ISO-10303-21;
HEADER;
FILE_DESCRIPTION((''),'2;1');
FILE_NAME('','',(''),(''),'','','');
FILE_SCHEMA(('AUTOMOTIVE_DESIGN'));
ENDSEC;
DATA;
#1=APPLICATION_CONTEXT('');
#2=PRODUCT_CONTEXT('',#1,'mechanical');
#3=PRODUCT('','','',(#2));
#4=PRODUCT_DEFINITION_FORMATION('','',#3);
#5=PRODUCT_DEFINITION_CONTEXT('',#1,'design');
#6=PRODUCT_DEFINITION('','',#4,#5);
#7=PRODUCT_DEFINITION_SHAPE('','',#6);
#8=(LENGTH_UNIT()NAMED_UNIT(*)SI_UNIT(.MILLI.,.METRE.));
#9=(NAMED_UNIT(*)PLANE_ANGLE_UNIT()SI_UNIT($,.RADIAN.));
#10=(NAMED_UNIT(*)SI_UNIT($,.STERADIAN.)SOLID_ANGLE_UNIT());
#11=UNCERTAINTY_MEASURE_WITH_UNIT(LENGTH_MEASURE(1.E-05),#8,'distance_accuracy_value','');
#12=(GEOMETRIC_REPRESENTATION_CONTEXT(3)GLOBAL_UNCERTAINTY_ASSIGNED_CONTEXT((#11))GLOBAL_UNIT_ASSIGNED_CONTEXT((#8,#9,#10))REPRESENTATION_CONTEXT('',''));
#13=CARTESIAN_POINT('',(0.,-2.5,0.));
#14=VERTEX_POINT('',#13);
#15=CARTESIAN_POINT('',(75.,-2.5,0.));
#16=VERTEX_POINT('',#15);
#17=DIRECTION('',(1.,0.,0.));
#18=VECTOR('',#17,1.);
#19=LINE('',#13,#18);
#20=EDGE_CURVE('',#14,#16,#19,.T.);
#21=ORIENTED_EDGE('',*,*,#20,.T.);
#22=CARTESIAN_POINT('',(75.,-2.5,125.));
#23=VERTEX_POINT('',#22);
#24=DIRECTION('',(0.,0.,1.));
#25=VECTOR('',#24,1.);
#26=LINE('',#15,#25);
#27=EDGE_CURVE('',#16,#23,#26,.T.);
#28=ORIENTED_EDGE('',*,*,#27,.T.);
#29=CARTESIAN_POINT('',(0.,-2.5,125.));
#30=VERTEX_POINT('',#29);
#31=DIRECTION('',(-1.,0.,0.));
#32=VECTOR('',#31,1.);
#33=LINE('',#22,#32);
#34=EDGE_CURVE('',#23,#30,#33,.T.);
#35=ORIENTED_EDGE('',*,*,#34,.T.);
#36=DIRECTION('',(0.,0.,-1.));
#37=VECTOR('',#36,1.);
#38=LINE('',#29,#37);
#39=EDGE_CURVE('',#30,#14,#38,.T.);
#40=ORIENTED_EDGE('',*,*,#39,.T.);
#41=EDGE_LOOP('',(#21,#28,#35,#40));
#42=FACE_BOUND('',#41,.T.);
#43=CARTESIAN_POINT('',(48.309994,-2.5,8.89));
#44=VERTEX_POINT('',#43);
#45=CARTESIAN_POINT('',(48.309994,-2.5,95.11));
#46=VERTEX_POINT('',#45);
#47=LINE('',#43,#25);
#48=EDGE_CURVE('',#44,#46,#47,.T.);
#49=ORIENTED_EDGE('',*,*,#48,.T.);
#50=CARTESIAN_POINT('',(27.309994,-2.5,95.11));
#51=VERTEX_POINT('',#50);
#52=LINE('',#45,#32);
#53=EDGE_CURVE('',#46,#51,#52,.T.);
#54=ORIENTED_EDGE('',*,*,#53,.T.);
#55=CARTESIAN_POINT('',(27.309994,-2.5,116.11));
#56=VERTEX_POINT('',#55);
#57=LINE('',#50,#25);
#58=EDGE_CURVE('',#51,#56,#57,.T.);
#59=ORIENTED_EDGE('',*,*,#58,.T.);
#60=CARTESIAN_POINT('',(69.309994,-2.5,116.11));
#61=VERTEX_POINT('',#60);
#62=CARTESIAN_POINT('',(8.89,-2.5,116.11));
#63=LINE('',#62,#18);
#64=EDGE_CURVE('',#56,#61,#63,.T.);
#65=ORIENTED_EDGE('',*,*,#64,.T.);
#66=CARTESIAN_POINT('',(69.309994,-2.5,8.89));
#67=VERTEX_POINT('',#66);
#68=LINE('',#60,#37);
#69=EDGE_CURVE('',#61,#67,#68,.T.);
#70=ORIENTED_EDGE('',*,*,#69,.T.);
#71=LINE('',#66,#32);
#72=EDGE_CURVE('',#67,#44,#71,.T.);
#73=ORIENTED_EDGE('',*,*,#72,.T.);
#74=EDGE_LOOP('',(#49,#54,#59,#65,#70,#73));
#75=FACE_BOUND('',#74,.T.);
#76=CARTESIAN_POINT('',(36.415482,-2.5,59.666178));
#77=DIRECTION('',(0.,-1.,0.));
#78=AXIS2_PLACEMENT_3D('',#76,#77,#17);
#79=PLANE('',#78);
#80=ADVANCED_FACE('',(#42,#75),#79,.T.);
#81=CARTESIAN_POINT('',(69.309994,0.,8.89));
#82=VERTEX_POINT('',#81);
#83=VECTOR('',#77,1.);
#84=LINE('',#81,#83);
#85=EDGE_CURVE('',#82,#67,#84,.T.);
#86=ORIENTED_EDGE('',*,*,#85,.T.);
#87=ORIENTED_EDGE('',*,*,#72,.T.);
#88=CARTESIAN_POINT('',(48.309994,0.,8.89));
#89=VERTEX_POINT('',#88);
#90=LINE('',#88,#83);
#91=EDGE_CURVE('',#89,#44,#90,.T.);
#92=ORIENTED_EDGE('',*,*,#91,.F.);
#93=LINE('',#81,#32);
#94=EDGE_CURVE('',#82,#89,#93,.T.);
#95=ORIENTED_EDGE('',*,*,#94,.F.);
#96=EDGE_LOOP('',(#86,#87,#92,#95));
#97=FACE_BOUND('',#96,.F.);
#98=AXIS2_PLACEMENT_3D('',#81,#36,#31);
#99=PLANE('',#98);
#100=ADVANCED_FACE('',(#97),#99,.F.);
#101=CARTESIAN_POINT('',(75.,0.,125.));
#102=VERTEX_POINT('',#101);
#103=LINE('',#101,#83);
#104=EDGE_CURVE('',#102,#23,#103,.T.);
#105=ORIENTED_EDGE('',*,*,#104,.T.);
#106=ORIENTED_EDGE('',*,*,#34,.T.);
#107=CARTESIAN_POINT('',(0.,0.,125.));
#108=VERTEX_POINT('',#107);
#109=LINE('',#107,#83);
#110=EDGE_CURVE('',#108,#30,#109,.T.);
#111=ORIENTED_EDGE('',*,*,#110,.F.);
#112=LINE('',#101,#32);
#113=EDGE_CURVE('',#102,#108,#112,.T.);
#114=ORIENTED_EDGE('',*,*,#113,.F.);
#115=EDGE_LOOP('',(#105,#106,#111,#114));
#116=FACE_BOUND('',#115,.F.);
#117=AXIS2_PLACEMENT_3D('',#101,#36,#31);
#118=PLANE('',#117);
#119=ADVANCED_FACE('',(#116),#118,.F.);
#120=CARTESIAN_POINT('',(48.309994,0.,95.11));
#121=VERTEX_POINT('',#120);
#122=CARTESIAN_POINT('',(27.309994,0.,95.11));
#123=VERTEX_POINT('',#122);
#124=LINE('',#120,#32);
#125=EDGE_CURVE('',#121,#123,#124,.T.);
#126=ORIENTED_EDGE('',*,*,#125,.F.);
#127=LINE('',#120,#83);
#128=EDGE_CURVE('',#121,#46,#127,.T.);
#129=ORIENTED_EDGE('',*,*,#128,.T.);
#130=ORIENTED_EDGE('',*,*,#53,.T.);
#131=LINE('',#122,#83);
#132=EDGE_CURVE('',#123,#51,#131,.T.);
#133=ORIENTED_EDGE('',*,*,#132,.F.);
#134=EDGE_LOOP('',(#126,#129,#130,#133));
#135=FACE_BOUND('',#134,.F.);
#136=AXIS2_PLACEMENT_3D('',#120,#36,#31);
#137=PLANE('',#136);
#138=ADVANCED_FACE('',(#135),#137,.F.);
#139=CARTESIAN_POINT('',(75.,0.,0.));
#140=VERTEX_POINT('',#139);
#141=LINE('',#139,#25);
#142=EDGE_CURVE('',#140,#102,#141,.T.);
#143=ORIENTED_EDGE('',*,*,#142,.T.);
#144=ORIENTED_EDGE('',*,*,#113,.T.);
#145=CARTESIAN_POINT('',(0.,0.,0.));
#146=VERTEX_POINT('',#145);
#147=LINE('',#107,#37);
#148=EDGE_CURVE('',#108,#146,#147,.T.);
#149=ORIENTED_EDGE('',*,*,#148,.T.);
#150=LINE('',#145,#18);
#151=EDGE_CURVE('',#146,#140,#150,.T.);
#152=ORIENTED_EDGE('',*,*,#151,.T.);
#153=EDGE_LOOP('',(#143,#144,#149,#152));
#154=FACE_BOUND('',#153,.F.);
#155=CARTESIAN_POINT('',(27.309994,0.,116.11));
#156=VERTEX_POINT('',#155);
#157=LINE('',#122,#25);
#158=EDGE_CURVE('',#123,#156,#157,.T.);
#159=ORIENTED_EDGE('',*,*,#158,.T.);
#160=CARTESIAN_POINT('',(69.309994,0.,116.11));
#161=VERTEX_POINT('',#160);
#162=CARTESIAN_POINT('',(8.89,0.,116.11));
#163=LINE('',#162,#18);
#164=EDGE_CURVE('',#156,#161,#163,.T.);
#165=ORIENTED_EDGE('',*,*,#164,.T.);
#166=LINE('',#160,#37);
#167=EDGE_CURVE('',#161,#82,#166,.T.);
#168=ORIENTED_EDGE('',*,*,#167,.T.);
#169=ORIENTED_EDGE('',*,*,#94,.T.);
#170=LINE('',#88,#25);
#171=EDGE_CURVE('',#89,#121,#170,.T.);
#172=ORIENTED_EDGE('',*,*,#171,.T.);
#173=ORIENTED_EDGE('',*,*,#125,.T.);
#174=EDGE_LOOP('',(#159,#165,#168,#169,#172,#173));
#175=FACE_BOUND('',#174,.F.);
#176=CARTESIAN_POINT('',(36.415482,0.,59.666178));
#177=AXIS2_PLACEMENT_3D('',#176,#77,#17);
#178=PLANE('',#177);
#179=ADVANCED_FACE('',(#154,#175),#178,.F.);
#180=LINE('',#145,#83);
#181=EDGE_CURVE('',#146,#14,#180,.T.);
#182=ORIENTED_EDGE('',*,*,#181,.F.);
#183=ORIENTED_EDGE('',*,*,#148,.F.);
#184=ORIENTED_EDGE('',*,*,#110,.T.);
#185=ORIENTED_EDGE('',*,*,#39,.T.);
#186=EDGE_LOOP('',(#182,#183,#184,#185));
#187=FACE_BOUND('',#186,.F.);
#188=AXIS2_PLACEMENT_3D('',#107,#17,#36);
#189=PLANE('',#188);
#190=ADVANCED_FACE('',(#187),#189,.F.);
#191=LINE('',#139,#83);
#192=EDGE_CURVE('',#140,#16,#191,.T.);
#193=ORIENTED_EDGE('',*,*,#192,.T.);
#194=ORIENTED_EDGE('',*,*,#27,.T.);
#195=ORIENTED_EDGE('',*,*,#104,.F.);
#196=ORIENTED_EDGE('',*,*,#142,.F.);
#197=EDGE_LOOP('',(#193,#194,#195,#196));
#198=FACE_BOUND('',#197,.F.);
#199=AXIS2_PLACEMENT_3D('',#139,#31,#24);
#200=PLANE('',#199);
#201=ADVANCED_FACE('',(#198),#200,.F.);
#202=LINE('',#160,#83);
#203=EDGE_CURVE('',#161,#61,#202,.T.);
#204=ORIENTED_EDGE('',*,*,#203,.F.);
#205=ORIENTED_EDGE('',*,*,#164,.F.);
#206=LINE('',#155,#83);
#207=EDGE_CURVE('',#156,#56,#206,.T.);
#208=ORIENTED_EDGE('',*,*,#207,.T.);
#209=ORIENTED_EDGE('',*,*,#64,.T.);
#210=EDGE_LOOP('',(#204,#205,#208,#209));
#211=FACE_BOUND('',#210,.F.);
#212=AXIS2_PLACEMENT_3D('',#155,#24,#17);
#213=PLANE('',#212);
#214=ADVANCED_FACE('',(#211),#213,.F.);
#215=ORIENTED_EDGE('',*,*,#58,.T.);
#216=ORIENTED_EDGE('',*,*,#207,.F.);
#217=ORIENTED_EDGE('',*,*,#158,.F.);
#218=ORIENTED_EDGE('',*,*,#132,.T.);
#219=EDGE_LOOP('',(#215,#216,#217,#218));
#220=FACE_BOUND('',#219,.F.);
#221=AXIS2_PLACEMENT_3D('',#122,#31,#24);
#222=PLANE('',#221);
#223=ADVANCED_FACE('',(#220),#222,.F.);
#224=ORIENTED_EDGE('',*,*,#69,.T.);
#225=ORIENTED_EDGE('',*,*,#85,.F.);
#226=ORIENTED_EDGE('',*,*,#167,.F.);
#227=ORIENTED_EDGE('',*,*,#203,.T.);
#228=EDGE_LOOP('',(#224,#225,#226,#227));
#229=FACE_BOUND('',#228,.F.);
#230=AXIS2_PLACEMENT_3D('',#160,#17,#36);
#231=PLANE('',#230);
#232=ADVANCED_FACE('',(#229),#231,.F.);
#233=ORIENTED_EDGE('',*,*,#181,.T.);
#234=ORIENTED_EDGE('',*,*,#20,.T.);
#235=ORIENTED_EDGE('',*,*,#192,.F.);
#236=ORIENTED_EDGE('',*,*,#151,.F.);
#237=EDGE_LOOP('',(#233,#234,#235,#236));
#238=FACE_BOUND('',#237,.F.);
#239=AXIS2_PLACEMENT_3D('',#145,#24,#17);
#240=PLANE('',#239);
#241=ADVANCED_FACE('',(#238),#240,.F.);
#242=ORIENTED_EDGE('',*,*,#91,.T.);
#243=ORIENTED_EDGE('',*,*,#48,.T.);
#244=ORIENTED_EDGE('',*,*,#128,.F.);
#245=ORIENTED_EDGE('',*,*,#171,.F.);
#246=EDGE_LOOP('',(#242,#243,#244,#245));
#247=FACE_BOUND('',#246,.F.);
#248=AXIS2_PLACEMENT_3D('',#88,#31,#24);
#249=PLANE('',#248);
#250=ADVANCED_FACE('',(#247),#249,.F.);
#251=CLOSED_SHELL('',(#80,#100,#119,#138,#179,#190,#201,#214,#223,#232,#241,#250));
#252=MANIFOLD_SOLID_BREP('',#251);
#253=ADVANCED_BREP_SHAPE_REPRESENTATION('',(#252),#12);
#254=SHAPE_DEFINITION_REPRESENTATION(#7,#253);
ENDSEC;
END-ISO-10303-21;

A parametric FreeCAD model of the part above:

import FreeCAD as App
import Part
import Sketcher

V = App.Vector
Q = App.Units.Quantity

doc = App.newDocument("Part")
body = doc.addObject("PartDesign::Body", "Body")

# Sketch on XZ plane
sketch1 = body.newObject("Sketcher::SketchObject", "Sketch")
sketch1.AttachmentSupport = (doc.getObject("XZ_Plane"), [""])
sketch1.MapMode = "FlatFace"
sketch1.addGeometry(Part.LineSegment(V(0, 125, 0), V(0, 0, 0)), False)
sketch1.addGeometry(Part.LineSegment(V(0, 0, 0), V(75, 0, 0)), False)
sketch1.addGeometry(Part.LineSegment(V(75, 0, 0), V(75, 125, 0)), False)
sketch1.addGeometry(Part.LineSegment(V(75, 125, 0), V(0, 125, 0)), False)
sketch1.addGeometry(Part.LineSegment(V(27, 116, 0), V(69, 116, 0)), False)
sketch1.addGeometry(Part.LineSegment(V(69, 116, 0), V(69, 9, 0)), False)
sketch1.addGeometry(Part.LineSegment(V(69, 9, 0), V(48, 9, 0)), False)
sketch1.addGeometry(Part.LineSegment(V(48, 9, 0), V(48, 95, 0)), False)
sketch1.addGeometry(Part.LineSegment(V(48, 95, 0), V(27, 95, 0)), False)
sketch1.addGeometry(Part.LineSegment(V(27, 95, 0), V(27, 116, 0)), False)
sketch1.addConstraint(Sketcher.Constraint("Coincident", 0, 2, 1, 1))
sketch1.addConstraint(Sketcher.Constraint("Coincident", 1, 2, 2, 1))
sketch1.addConstraint(Sketcher.Constraint("Coincident", 2, 2, 3, 1))
sketch1.addConstraint(Sketcher.Constraint("Coincident", 3, 2, 0, 1))
sketch1.addConstraint(Sketcher.Constraint("Coincident", 4, 2, 5, 1))
sketch1.addConstraint(Sketcher.Constraint("Coincident", 5, 2, 6, 1))
sketch1.addConstraint(Sketcher.Constraint("Coincident", 6, 2, 7, 1))
sketch1.addConstraint(Sketcher.Constraint("Coincident", 7, 2, 8, 1))
sketch1.addConstraint(Sketcher.Constraint("Coincident", 8, 2, 9, 1))
sketch1.addConstraint(Sketcher.Constraint("Coincident", 9, 2, 4, 1))
sketch1.addConstraint(Sketcher.Constraint("Vertical", 0))
sketch1.addConstraint(Sketcher.Constraint("Horizontal", 1))
sketch1.addConstraint(Sketcher.Constraint("Vertical", 2))
sketch1.addConstraint(Sketcher.Constraint("Horizontal", 3))
sketch1.addConstraint(Sketcher.Constraint("Horizontal", 4))
sketch1.addConstraint(Sketcher.Constraint("Vertical", 5))
sketch1.addConstraint(Sketcher.Constraint("Horizontal", 6))
sketch1.addConstraint(Sketcher.Constraint("Vertical", 7))
sketch1.addConstraint(Sketcher.Constraint("Horizontal", 8))
sketch1.addConstraint(Sketcher.Constraint("Vertical", 9))
sketch1.addConstraint(Sketcher.Constraint("Coincident", 0, 2, -1, 1))
sketch1.addConstraint(Sketcher.Constraint("Equal", 6, 8))
sketch1.addConstraint(Sketcher.Constraint("Equal", 8, 9))
sketch1.addConstraint(Sketcher.Constraint("DistanceX", 1, 1, 1, 2, Q("75 mm")))
sketch1.addConstraint(Sketcher.Constraint("DistanceX", 4, 1, 4, 2, Q("42 mm")))
sketch1.addConstraint(Sketcher.Constraint("DistanceY", 0, 2, 0, 1, Q("125 mm")))
sketch1.addConstraint(Sketcher.Constraint("DistanceY", 5, 2, 5, 1, Q("107.22 mm")))
sketch1.addConstraint(Sketcher.Constraint("DistanceY", -1, 1, 4, 2, Q("116.11 mm")))
sketch1.addConstraint(Sketcher.Constraint("DistanceX", -1, 1, 4, 2, Q("69.309994 mm")))
pad1 = body.newObject("PartDesign::Pad", "Pad")
pad1.Profile = sketch1
pad1.Length = 2.5

doc.recompute()
